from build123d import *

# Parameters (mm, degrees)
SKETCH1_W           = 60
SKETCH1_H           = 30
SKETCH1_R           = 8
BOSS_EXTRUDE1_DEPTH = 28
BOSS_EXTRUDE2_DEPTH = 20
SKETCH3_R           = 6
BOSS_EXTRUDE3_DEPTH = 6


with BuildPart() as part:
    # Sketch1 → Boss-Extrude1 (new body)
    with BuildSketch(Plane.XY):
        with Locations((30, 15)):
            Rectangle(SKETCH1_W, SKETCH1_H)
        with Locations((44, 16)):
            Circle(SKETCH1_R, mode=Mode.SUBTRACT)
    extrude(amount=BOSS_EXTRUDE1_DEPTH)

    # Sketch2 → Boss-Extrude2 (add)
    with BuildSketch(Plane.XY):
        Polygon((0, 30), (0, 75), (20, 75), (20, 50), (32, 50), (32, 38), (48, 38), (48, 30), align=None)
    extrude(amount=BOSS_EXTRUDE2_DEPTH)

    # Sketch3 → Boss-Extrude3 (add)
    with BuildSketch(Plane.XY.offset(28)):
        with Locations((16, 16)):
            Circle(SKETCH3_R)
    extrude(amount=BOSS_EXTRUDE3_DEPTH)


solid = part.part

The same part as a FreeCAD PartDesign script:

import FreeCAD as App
import Part
import Sketcher

V = App.Vector
Q = App.Units.Quantity

doc = App.newDocument("Part")
body = doc.addObject("PartDesign::Body", "Body")

sketch1 = body.newObject("Sketcher::SketchObject", "Sketch")
sketch1.AttachmentSupport = (doc.getObject("XY_Plane"), [""])
sketch1.MapMode = "FlatFace"
sketch1.addGeometry([
    Part.LineSegment(V(0, 30, 0), V(0, 0, 0)),
    Part.LineSegment(V(0, 0, 0), V(60, 0, 0)),
    Part.LineSegment(V(60, 0, 0), V(60, 30, 0)),
    Part.LineSegment(V(60, 30, 0), V(0, 30, 0)),
    Part.Circle(V(44, 16, 0), V(0, 0, 1), 8),
], False)
sketch1.addConstraint([
    Sketcher.Constraint("Coincident", 0, 2, 1, 1),
    Sketcher.Constraint("Coincident", 1, 2, 2, 1),
    Sketcher.Constraint("Coincident", 2, 2, 3, 1),
    Sketcher.Constraint("Coincident", 3, 2, 0, 1),
    Sketcher.Constraint("Vertical", 0),
    Sketcher.Constraint("Horizontal", 1),
    Sketcher.Constraint("Vertical", 2),
    Sketcher.Constraint("Horizontal", 3),
    Sketcher.Constraint("Coincident", 0, 2, -1, 1),
    Sketcher.Constraint("Diameter", 4, Q("16 mm")),
    Sketcher.Constraint("DistanceX", 1, 1, 1, 2, Q("60 mm")),
    Sketcher.Constraint("DistanceY", 0, 2, 0, 1, Q("30 mm")),
    Sketcher.Constraint("DistanceX", -1, 1, 4, 3, Q("44 mm")),
    Sketcher.Constraint("DistanceY", -1, 1, 4, 3, Q("16 mm")),
])
pad1 = body.newObject("PartDesign::Pad", "Pad")
pad1.Profile = sketch1
pad1.Length = 28

sketch2 = body.newObject("Sketcher::SketchObject", "Sketch001")
sketch2.AttachmentSupport = (doc.getObject("XY_Plane"), [""])
sketch2.MapMode = "FlatFace"
sketch2.addGeometry([
    Part.LineSegment(V(0, 75, 0), V(0, 30, 0)),
    Part.LineSegment(V(0, 30, 0), V(48, 30, 0)),
    Part.LineSegment(V(48, 30, 0), V(48, 38, 0)),
    Part.LineSegment(V(48, 38, 0), V(32, 38, 0)),
    Part.LineSegment(V(32, 38, 0), V(32, 50, 0)),
    Part.LineSegment(V(32, 50, 0), V(20, 50, 0)),
    Part.LineSegment(V(20, 50, 0), V(20, 75, 0)),
    Part.LineSegment(V(20, 75, 0), V(0, 75, 0)),
], False)
sketch2.addConstraint([
    Sketcher.Constraint("Coincident", 0, 2, 1, 1),
    Sketcher.Constraint("Coincident", 1, 2, 2, 1),
    Sketcher.Constraint("Coincident", 2, 2, 3, 1),
    Sketcher.Constraint("Coincident", 3, 2, 4, 1),
    Sketcher.Constraint("Coincident", 4, 2, 5, 1),
    Sketcher.Constraint("Coincident", 5, 2, 6, 1),
    Sketcher.Constraint("Coincident", 6, 2, 7, 1),
    Sketcher.Constraint("Coincident", 7, 2, 0, 1),
    Sketcher.Constraint("Vertical", 0),
    Sketcher.Constraint("Horizontal", 1),
    Sketcher.Constraint("Vertical", 2),
    Sketcher.Constraint("Horizontal", 3),
    Sketcher.Constraint("Vertical", 4),
    Sketcher.Constraint("Horizontal", 5),
    Sketcher.Constraint("Vertical", 6),
    Sketcher.Constraint("Horizontal", 7),
    Sketcher.Constraint("PointOnObject", 0, 2, -2),
    Sketcher.Constraint("Equal", 5, 4),
    Sketcher.Constraint("DistanceX", 1, 1, 1, 2, Q("48 mm")),
    Sketcher.Constraint("DistanceX", 3, 2, 3, 1, Q("16 mm")),
    Sketcher.Constraint("DistanceX", 5, 2, 5, 1, Q("12 mm")),
    Sketcher.Constraint("DistanceY", 0, 2, 0, 1, Q("45 mm")),
    Sketcher.Constraint("DistanceY", 2, 1, 2, 2, Q("8 mm")),
    Sketcher.Constraint("DistanceY", -1, 1, 0, 2, Q("30 mm")),
])
pad2 = body.newObject("PartDesign::Pad", "Pad001")
pad2.Profile = sketch2
pad2.Length = 20

sketch3 = body.newObject("Sketcher::SketchObject", "Sketch002")
sketch3.AttachmentSupport = (doc.getObject("XY_Plane"), [""])
sketch3.MapMode = "FlatFace"
sketch3.AttachmentOffset = App.Placement(V(0, 0, 28), App.Rotation())
sketch3.addGeometry(Part.Circle(V(16, 16, 0), V(0, 0, 1), 6), False)
sketch3.addConstraint([
    Sketcher.Constraint("Diameter", 0, Q("12 mm")),
    Sketcher.Constraint("DistanceX", -1, 1, 0, 3, Q("16 mm")),
    Sketcher.Constraint("DistanceY", -1, 1, 0, 3, Q("16 mm")),
])
pad3 = body.newObject("PartDesign::Pad", "Pad002")
pad3.Profile = sketch3
pad3.Length = 6

doc.recompute()
